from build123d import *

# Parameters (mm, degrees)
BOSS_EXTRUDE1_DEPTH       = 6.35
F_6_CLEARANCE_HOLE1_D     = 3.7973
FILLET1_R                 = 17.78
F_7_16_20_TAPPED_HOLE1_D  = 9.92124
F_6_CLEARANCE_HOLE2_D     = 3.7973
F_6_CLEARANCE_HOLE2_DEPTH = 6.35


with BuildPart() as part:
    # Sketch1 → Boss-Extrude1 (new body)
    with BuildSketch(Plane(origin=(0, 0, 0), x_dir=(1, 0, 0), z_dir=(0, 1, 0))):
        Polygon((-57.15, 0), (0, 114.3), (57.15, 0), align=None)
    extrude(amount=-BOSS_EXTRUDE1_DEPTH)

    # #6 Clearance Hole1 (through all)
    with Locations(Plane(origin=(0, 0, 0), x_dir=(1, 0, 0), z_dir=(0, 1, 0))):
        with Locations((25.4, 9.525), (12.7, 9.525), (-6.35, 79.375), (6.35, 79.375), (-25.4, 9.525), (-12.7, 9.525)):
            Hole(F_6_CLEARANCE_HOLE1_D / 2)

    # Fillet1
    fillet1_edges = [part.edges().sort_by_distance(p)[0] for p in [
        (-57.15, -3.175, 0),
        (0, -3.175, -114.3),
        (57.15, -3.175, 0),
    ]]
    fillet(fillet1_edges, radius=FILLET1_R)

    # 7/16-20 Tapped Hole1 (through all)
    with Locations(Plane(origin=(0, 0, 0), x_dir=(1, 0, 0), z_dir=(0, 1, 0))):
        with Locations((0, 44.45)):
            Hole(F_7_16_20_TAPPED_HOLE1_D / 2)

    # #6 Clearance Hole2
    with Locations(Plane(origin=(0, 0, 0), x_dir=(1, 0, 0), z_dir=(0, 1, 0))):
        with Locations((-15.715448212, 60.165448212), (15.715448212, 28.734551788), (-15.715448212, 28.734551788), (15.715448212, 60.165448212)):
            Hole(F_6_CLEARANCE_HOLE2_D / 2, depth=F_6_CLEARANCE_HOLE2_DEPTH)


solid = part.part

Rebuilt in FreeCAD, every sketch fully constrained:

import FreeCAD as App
import Part
import Sketcher
Q = App.Units.Quantity


def edges_at(feature, points):
    """Names of the edges that pass closest to the given points."""
    edges = feature.Shape.Edges
    near = lambda p: min(range(len(edges)), key=lambda i: edges[i].distToShape(Part.Vertex(*p))[0])
    return sorted({f"Edge{near(p) + 1}" for p in points})


def add_polygon(sketch, points):
    """Adds a closed chain of lines whose ends are joined by coincident constraints."""
    first, n = sketch.GeometryCount, len(points)
    for a, b in zip(points, points[1:] + points[:1]):
        sketch.addGeometry(Part.LineSegment(App.Vector(*a, 0), App.Vector(*b, 0)), False)
    for i in range(n):
        sketch.addConstraint(Sketcher.Constraint("Coincident", first + i, 2, first + (i + 1) % n, 1))

doc = App.newDocument("Part")
body = doc.addObject("PartDesign::Body", "Body")

sketch1 = doc.addObject("Sketcher::SketchObject", "Sketch")
body.addObject(sketch1)
sketch1.AttachmentSupport = (doc.XZ_Plane, [""])
sketch1.MapMode = "FlatFace"
add_polygon(sketch1, [(0, -114), (-57, 0), (57, 0)])
sketch1.addConstraint([
    Sketcher.Constraint("Horizontal", 1),
    Sketcher.Constraint("Symmetric", 0, 2, 1, 2, -1, 1),
    Sketcher.Constraint("PointOnObject", 2, 2, -2),
    Sketcher.Constraint("DistanceX", 1, 1, 1, 2, Q("4.5 in")),
    Sketcher.Constraint("DistanceY", 2, 2, -1, 1, Q("4.5 in")),
])
pad1 = doc.addObject("PartDesign::Pad", "Pad")
body.addObject(pad1)
pad1.Profile = sketch1
pad1.Length = Q("0.25 in")

sketch2 = doc.addObject("Sketcher::SketchObject", "Sketch001")
body.addObject(sketch2)
sketch2.AttachmentSupport = (doc.XZ_Plane, [""])
sketch2.MapMode = "FlatFace"
sketch2.addGeometry([
    Part.Circle(App.Vector(25.4, -9.5, 0), App.Vector(0, 0, 1), 1.9),
    Part.Circle(App.Vector(12.7, -9.5, 0), App.Vector(0, 0, 1), 1.9),
    Part.Circle(App.Vector(-6.3, -79.4, 0), App.Vector(0, 0, 1), 1.9),
    Part.Circle(App.Vector(6.3, -79.4, 0), App.Vector(0, 0, 1), 1.9),
    Part.Circle(App.Vector(-25.4, -9.5, 0), App.Vector(0, 0, 1), 1.9),
    Part.Circle(App.Vector(-12.7, -9.5, 0), App.Vector(0, 0, 1), 1.9),
], False)
sketch2.addConstraint([
    Sketcher.Constraint("Equal", 0, 1),
    Sketcher.Constraint("Equal", 1, 2),
    Sketcher.Constraint("Equal", 2, 3),
    Sketcher.Constraint("Equal", 3, 4),
    Sketcher.Constraint("Equal", 4, 5),
    Sketcher.Constraint("Symmetric", 2, 3, 3, 3, -2),
    Sketcher.Constraint("Symmetric", 0, 3, 4, 3, -2),
    Sketcher.Constraint("Symmetric", 1, 3, 5, 3, -2),
    Sketcher.Constraint("Horizontal", 0, 3, 1, 3),
    Sketcher.Constraint("DistanceX", -1, 1, 0, 3, Q("1 in")),
    Sketcher.Constraint("DistanceX", 5, 3, 1, 3, Q("1 in")),
    Sketcher.Constraint("Diameter", 0, Q("0.1495 in")),
    Sketcher.Constraint("DistanceX", 2, 3, 3, 3, Q("0.5 in")),
    Sketcher.Constraint("DistanceY", 2, 3, 1, 3, Q("2.75 in")),
    Sketcher.Constraint("DistanceY", 0, 3, -1, 1, Q("0.375 in")),
])
doc.recompute()
hole = doc.addObject("PartDesign::Hole", "Hole")
body.addObject(hole)
hole.Profile = sketch2
hole.ThreadType = "None"
hole.Diameter = Q("0.1495 in")
hole.DepthType = "ThroughAll"
hole.Reversed = True
doc.recompute()

fillet = doc.addObject("PartDesign::Fillet", "Fillet")
body.addObject(fillet)
fillet.Base = (hole, edges_at(hole, [(-57.15, -3.175, 0), (0, -3.175, -114.3), (57.15, -3.175, 0)]))
fillet.Radius = Q("0.7 in")

sketch3 = doc.addObject("Sketcher::SketchObject", "Sketch002")
body.addObject(sketch3)
sketch3.AttachmentSupport = (doc.XZ_Plane, [""])
sketch3.MapMode = "FlatFace"
sketch3.addGeometry(Part.Circle(App.Vector(0, -44.5, 0), App.Vector(0, 0, 1), 5), False)
sketch3.addConstraint([
    Sketcher.Constraint("PointOnObject", 0, 3, -2),
    Sketcher.Constraint("Diameter", 0, Q("0.3906 in")),
    Sketcher.Constraint("DistanceY", 0, 3, -1, 1, Q("1.75 in")),
])
doc.recompute()
hole2 = doc.addObject("PartDesign::Hole", "Hole001")
body.addObject(hole2)
hole2.Profile = sketch3
hole2.ThreadType = "None"
hole2.Diameter = Q("0.3906 in")
hole2.DepthType = "ThroughAll"
hole2.Reversed = True

sketch4 = doc.addObject("Sketcher::SketchObject", "Sketch003")
body.addObject(sketch4)
sketch4.AttachmentSupport = (doc.XZ_Plane, [""])
sketch4.MapMode = "FlatFace"
sketch4.addGeometry([
    Part.Circle(App.Vector(-15.7, -60.2, 0), App.Vector(0, 0, 1), 1.9),
    Part.Circle(App.Vector(15.7, -28.7, 0), App.Vector(0, 0, 1), 1.9),
    Part.Circle(App.Vector(-15.7, -28.7, 0), App.Vector(0, 0, 1), 1.9),
    Part.Circle(App.Vector(15.7, -60.2, 0), App.Vector(0, 0, 1), 1.9),
], False)
sketch4.addConstraint([
    Sketcher.Constraint("Equal", 0, 1),
    Sketcher.Constraint("Equal", 1, 2),
    Sketcher.Constraint("Equal", 2, 3),
    Sketcher.Constraint("Symmetric", 1, 3, 2, 3, -2),
    Sketcher.Constraint("Symmetric", 0, 3, 3, 3, -2),
    Sketcher.Constraint("Vertical", 0, 3, 2, 3),
    Sketcher.Constraint("Diameter", 0, Q("0.1495 in")),
    Sketcher.Constraint("DistanceX", 0, 3, -1, 1, 15.715448),
    Sketcher.Constraint("DistanceY", 0, 3, -1, 1, 60.165448),
    Sketcher.Constraint("DistanceY", 1, 3, -1, 1, 28.734552),
])
doc.recompute()
hole3 = doc.addObject("PartDesign::Hole", "Hole002")
body.addObject(hole3)
hole3.Profile = sketch4
hole3.ThreadType = "None"
hole3.Diameter = Q("0.1495 in")
hole3.DepthType = "Dimension"
hole3.Depth = Q("0.25 in")
hole3.DrillPoint = "Flat"
hole3.Reversed = True

doc.recompute()
